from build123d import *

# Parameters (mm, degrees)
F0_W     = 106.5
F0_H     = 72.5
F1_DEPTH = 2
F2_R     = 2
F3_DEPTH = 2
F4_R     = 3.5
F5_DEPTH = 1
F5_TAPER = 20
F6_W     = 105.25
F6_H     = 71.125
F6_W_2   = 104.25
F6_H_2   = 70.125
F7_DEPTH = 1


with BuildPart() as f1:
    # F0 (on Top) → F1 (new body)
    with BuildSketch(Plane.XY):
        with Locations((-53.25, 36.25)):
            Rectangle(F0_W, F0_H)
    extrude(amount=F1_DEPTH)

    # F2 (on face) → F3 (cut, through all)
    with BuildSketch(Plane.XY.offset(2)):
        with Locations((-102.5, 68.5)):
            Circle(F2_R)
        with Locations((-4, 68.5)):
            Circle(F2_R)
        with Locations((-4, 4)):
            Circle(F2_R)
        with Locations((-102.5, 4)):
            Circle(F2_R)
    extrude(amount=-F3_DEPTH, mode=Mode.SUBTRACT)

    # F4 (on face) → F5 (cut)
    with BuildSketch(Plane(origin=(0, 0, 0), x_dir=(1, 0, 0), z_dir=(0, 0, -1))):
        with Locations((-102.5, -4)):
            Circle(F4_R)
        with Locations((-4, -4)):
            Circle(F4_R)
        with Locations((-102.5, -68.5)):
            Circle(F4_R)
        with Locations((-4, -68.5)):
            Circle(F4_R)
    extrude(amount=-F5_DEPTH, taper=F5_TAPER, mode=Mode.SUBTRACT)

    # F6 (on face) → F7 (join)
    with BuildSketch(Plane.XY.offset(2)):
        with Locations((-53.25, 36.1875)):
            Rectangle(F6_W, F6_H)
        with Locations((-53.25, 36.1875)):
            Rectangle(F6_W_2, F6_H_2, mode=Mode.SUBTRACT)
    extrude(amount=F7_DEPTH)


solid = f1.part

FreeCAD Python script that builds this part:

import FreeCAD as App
import Part
import Sketcher
Q = App.Units.Quantity


def add_polygon(sketch, points):
    """Adds a closed chain of lines whose ends are joined by coincident constraints."""
    first, n = sketch.GeometryCount, len(points)
    for a, b in zip(points, points[1:] + points[:1]):
        sketch.addGeometry(Part.LineSegment(App.Vector(*a, 0), App.Vector(*b, 0)), False)
    for i in range(n):
        sketch.addConstraint(Sketcher.Constraint("Coincident", first + i, 2, first + (i + 1) % n, 1))

doc = App.newDocument("Part")
body = doc.addObject("PartDesign::Body", "Body")

# Sketch on XY plane
sketch1 = body.newObject("Sketcher::SketchObject", "Sketch")
sketch1.AttachmentSupport = (doc.getObject("XY_Plane"), [""])
sketch1.MapMode = "FlatFace"
add_polygon(sketch1, [(-106, 72), (-106, 0), (0, 0), (0, 72)])  # lines 0-3
sketch1.addConstraint([
    Sketcher.Constraint("Vertical", 0),
    Sketcher.Constraint("Horizontal", 1),
    Sketcher.Constraint("Vertical", 2),
    Sketcher.Constraint("Horizontal", 3),
    Sketcher.Constraint("Coincident", 1, 2, -1, 1),
    Sketcher.Constraint("DistanceX", 1, 1, 1, 2, Q("106.5 mm")),
    Sketcher.Constraint("DistanceY", 0, 2, 0, 1, Q("72.5 mm")),
])
pad1 = body.newObject("PartDesign::Pad", "Pad")
pad1.Profile = sketch1
pad1.Length = 2

# Sketch on XY plane
sketch2 = body.newObject("Sketcher::SketchObject", "Sketch001")
sketch2.AttachmentSupport = (doc.getObject("XY_Plane"), [""])
sketch2.MapMode = "FlatFace"
sketch2.AttachmentOffset = App.Placement(App.Vector(0, 0, 2), App.Rotation())
sketch2.addGeometry([
    Part.Circle(App.Vector(-102.5, 68.5, 0), App.Vector(0, 0, 1), 2),
    Part.Circle(App.Vector(-4, 68.5, 0), App.Vector(0, 0, 1), 2),
    Part.Circle(App.Vector(-4, 4, 0), App.Vector(0, 0, 1), 2),
    Part.Circle(App.Vector(-102.5, 4, 0), App.Vector(0, 0, 1), 2),
], False)
sketch2.addConstraint([
    Sketcher.Constraint("Equal", 0, 1),
    Sketcher.Constraint("Equal", 1, 2),
    Sketcher.Constraint("Equal", 2, 3),
    Sketcher.Constraint("Horizontal", 0, 3, 1, 3),
    Sketcher.Constraint("Horizontal", 2, 3, 3, 3),
    Sketcher.Constraint("Vertical", 1, 3, 2, 3),
    Sketcher.Constraint("Vertical", 0, 3, 3, 3),
    Sketcher.Constraint("Diameter", 0, Q("4 mm")),
    Sketcher.Constraint("DistanceX", 1, 3, -1, 1, Q("4 mm")),
    Sketcher.Constraint("DistanceY", -1, 1, 2, 3, Q("4 mm")),
    Sketcher.Constraint("DistanceX", 0, 3, -1, 1, Q("102.5 mm")),
    Sketcher.Constraint("DistanceY", -1, 1, 0, 3, Q("68.5 mm")),
])
pocket1 = body.newObject("PartDesign::Pocket", "Pocket")
pocket1.Profile = sketch2
pocket1.Type = "ThroughAll"

# Sketch on XY plane
sketch3 = body.newObject("Sketcher::SketchObject", "Sketch002")
sketch3.AttachmentSupport = (doc.getObject("XY_Plane"), [""])
sketch3.MapMode = "FlatFace"
sketch3.addGeometry([
    Part.Circle(App.Vector(-102.5, 4, 0), App.Vector(0, 0, 1), 3.5),
    Part.Circle(App.Vector(-4, 4, 0), App.Vector(0, 0, 1), 3.5),
    Part.Circle(App.Vector(-102.5, 68.5, 0), App.Vector(0, 0, 1), 3.5),
    Part.Circle(App.Vector(-4, 68.5, 0), App.Vector(0, 0, 1), 3.5),
], False)
sketch3.addConstraint([
    Sketcher.Constraint("Equal", 0, 1),
    Sketcher.Constraint("Equal", 1, 2),
    Sketcher.Constraint("Equal", 2, 3),
    Sketcher.Constraint("Horizontal", 0, 3, 1, 3),
    Sketcher.Constraint("Horizontal", 2, 3, 3, 3),
    Sketcher.Constraint("Vertical", 0, 3, 2, 3),
    Sketcher.Constraint("Vertical", 1, 3, 3, 3),
    Sketcher.Constraint("Diameter", 0, Q("7 mm")),
    Sketcher.Constraint("DistanceY", -1, 1, 0, 3, Q("4 mm")),
    Sketcher.Constraint("DistanceX", 1, 3, -1, 1, Q("4 mm")),
    Sketcher.Constraint("DistanceX", 0, 3, -1, 1, Q("102.5 mm")),
    Sketcher.Constraint("DistanceY", -1, 1, 2, 3, Q("68.5 mm")),
])
pocket2 = body.newObject("PartDesign::Pocket", "Pocket001")
pocket2.Profile = sketch3
pocket2.Length = 1
pocket2.Reversed = True
pocket2.TaperAngle = -20

# Sketch on XY plane
sketch4 = body.newObject("Sketcher::SketchObject", "Sketch003")
sketch4.AttachmentSupport = (doc.getObject("XY_Plane"), [""])
sketch4.MapMode = "FlatFace"
sketch4.AttachmentOffset = App.Placement(App.Vector(0, 0, 2), App.Rotation())
add_polygon(sketch4, [(-106, 72), (-106, 1), (-1, 1), (-1, 72)])  # lines 0-3
add_polygon(sketch4, [(-1, 1), (-105, 1), (-105, 71), (-1, 71)])  # lines 4-7
sketch4.addConstraint([
    Sketcher.Constraint("Vertical", 0),
    Sketcher.Constraint("Horizontal", 1),
    Sketcher.Constraint("Vertical", 2),
    Sketcher.Constraint("Horizontal", 3),
    Sketcher.Constraint("Horizontal", 4),
    Sketcher.Constraint("Vertical", 5),
    Sketcher.Constraint("Horizontal", 6),
    Sketcher.Constraint("Vertical", 7),
    Sketcher.Constraint("DistanceX", 1, 1, 1, 2, Q("105.25 mm")),
    Sketcher.Constraint("DistanceX", 4, 2, 4, 1, Q("104.25 mm")),
    Sketcher.Constraint("DistanceX", 0, 2, 4, 2, Q("0.5 mm")),
    Sketcher.Constraint("DistanceY", 0, 2, 4, 2, Q("0.5 mm")),
    Sketcher.Constraint("DistanceY", 5, 2, 3, 2, Q("0.5 mm")),
    Sketcher.Constraint("DistanceY", 0, 2, 0, 1, Q("71.125 mm")),
    Sketcher.Constraint("DistanceY", -1, 1, 2, 2, Q("71.75 mm")),
    Sketcher.Constraint("DistanceX", 0, 2, -1, 1, Q("105.875 mm")),
])
pad2 = body.newObject("PartDesign::Pad", "Pad001")
pad2.Profile = sketch4
pad2.Length = 1

doc.recompute()
